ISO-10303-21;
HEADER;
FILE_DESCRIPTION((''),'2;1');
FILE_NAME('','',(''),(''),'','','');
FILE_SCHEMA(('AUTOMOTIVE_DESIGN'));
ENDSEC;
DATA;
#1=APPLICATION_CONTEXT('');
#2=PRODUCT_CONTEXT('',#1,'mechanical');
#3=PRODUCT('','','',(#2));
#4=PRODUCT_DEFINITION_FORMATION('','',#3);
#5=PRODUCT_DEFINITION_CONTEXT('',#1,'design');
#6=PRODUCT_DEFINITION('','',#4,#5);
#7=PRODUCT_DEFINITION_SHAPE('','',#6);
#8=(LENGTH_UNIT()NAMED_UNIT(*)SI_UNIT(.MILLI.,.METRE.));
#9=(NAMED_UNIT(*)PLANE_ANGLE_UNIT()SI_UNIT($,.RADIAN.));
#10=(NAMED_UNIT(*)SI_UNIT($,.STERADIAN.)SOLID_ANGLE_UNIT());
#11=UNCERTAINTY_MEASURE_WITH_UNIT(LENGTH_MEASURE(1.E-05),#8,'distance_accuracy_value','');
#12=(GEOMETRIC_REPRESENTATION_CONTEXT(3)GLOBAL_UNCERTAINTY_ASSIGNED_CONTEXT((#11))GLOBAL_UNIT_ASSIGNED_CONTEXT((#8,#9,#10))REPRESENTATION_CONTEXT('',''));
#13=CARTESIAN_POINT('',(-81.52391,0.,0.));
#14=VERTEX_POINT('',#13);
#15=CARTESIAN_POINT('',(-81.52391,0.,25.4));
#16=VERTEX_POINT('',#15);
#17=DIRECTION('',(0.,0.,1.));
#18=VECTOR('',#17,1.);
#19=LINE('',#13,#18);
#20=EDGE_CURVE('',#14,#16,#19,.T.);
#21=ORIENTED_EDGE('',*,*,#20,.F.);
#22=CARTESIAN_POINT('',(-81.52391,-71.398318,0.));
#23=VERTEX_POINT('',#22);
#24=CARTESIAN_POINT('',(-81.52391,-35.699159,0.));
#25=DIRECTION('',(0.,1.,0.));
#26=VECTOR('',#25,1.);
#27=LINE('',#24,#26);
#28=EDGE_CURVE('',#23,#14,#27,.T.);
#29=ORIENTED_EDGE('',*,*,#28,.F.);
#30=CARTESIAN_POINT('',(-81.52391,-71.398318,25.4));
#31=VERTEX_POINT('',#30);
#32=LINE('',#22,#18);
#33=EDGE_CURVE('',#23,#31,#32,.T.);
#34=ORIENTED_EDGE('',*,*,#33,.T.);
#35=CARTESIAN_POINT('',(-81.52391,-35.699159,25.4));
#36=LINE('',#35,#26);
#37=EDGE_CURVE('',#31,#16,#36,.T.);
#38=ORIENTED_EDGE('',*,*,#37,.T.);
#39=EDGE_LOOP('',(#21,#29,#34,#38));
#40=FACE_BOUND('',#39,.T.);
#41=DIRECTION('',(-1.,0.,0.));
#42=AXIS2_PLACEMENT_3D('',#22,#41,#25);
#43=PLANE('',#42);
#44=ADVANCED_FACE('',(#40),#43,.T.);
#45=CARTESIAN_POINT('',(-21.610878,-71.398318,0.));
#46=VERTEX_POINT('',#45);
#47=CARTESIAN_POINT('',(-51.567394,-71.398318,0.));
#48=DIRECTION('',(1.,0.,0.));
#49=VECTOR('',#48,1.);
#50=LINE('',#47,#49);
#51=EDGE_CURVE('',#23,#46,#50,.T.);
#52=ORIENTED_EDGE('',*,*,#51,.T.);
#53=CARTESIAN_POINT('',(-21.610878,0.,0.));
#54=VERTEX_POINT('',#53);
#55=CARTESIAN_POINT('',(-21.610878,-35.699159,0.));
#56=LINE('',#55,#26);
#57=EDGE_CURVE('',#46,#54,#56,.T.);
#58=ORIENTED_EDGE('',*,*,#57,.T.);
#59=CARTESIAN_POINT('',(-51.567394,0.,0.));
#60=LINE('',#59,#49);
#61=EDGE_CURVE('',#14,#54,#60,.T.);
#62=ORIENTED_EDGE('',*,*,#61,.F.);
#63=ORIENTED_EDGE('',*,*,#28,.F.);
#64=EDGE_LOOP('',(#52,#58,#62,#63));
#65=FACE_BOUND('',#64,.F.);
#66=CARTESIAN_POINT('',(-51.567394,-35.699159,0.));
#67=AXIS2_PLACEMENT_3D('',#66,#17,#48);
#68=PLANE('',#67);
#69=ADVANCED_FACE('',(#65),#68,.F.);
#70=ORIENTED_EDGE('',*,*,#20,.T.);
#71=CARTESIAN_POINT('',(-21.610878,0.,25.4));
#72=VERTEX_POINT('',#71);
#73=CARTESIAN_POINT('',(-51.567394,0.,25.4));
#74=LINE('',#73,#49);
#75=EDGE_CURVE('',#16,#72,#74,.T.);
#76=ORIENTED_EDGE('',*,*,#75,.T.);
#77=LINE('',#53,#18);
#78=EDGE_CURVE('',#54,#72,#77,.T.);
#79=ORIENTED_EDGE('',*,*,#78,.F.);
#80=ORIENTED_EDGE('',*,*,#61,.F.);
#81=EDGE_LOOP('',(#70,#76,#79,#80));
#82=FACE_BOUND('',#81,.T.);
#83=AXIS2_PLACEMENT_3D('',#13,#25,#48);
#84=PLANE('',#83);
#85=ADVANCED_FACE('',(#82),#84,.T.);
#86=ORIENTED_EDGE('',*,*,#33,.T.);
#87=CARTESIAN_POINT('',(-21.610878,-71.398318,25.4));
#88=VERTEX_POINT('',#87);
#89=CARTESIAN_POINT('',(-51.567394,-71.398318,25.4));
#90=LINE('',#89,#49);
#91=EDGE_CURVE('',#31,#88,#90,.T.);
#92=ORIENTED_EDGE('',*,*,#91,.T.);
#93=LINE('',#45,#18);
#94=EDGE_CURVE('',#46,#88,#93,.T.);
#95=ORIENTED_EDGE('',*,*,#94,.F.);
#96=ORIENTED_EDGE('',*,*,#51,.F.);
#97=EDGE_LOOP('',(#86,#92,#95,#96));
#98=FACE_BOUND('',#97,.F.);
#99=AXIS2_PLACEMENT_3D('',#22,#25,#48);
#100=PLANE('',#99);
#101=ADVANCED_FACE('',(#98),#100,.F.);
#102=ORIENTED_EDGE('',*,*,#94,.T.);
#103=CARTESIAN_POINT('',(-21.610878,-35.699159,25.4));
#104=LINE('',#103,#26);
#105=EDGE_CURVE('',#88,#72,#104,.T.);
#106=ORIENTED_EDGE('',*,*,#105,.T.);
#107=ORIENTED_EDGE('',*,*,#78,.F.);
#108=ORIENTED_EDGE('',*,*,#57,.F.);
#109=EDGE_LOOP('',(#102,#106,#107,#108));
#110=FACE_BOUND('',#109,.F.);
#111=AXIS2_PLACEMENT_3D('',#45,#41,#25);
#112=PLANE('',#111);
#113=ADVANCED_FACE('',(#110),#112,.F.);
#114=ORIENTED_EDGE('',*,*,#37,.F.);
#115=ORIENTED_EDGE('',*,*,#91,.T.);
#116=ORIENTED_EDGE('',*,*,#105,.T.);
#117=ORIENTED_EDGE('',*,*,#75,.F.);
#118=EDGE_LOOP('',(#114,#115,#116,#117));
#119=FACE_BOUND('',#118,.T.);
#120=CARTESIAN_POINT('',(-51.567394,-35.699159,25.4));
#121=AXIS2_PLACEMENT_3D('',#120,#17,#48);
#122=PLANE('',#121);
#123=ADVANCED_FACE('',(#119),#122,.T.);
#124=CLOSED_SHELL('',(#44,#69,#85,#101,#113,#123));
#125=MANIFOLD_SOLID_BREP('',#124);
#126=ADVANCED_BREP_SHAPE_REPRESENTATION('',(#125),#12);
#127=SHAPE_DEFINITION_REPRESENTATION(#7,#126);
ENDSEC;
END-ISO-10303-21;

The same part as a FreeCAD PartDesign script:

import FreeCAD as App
import Part
import Sketcher
Q = App.Units.Quantity

doc = App.newDocument("Part")
body = doc.addObject("PartDesign::Body", "Body")

# Sketch on XY plane
sketch1 = body.newObject("Sketcher::SketchObject", "Sketch")
sketch1.AttachmentSupport = (doc.getObject("XY_Plane"), [""])
sketch1.MapMode = "FlatFace"
sketch1.addGeometry(Part.LineSegment(App.Vector(-82, 0, 0), App.Vector(-82, -71, 0)), False)
sketch1.addGeometry(Part.LineSegment(App.Vector(-82, -71, 0), App.Vector(-22, -71, 0)), False)
sketch1.addGeometry(Part.LineSegment(App.Vector(-22, -71, 0), App.Vector(-22, 0, 0)), False)
sketch1.addGeometry(Part.LineSegment(App.Vector(-22, 0, 0), App.Vector(-82, 0, 0)), False)
sketch1.addConstraint(Sketcher.Constraint("Coincident", 0, 2, 1, 1))
sketch1.addConstraint(Sketcher.Constraint("Coincident", 1, 2, 2, 1))
sketch1.addConstraint(Sketcher.Constraint("Coincident", 2, 2, 3, 1))
sketch1.addConstraint(Sketcher.Constraint("Coincident", 3, 2, 0, 1))
sketch1.addConstraint(Sketcher.Constraint("Vertical", 0))
sketch1.addConstraint(Sketcher.Constraint("Horizontal", 1))
sketch1.addConstraint(Sketcher.Constraint("Vertical", 2))
sketch1.addConstraint(Sketcher.Constraint("Horizontal", 3))
sketch1.addConstraint(Sketcher.Constraint("PointOnObject", 2, 2, -1))
sketch1.addConstraint(Sketcher.Constraint("DistanceY", 0, 2, 0, 1, 71.398318))
sketch1.addConstraint(Sketcher.Constraint("DistanceX", 1, 1, 1, 2, 59.913032))
sketch1.addConstraint(Sketcher.Constraint("DistanceX", 0, 2, -1, 1, 81.52391))
pad1 = body.newObject("PartDesign::Pad", "Pad")
pad1.Profile = sketch1
pad1.Length = Q("1 in")

doc.recompute()
